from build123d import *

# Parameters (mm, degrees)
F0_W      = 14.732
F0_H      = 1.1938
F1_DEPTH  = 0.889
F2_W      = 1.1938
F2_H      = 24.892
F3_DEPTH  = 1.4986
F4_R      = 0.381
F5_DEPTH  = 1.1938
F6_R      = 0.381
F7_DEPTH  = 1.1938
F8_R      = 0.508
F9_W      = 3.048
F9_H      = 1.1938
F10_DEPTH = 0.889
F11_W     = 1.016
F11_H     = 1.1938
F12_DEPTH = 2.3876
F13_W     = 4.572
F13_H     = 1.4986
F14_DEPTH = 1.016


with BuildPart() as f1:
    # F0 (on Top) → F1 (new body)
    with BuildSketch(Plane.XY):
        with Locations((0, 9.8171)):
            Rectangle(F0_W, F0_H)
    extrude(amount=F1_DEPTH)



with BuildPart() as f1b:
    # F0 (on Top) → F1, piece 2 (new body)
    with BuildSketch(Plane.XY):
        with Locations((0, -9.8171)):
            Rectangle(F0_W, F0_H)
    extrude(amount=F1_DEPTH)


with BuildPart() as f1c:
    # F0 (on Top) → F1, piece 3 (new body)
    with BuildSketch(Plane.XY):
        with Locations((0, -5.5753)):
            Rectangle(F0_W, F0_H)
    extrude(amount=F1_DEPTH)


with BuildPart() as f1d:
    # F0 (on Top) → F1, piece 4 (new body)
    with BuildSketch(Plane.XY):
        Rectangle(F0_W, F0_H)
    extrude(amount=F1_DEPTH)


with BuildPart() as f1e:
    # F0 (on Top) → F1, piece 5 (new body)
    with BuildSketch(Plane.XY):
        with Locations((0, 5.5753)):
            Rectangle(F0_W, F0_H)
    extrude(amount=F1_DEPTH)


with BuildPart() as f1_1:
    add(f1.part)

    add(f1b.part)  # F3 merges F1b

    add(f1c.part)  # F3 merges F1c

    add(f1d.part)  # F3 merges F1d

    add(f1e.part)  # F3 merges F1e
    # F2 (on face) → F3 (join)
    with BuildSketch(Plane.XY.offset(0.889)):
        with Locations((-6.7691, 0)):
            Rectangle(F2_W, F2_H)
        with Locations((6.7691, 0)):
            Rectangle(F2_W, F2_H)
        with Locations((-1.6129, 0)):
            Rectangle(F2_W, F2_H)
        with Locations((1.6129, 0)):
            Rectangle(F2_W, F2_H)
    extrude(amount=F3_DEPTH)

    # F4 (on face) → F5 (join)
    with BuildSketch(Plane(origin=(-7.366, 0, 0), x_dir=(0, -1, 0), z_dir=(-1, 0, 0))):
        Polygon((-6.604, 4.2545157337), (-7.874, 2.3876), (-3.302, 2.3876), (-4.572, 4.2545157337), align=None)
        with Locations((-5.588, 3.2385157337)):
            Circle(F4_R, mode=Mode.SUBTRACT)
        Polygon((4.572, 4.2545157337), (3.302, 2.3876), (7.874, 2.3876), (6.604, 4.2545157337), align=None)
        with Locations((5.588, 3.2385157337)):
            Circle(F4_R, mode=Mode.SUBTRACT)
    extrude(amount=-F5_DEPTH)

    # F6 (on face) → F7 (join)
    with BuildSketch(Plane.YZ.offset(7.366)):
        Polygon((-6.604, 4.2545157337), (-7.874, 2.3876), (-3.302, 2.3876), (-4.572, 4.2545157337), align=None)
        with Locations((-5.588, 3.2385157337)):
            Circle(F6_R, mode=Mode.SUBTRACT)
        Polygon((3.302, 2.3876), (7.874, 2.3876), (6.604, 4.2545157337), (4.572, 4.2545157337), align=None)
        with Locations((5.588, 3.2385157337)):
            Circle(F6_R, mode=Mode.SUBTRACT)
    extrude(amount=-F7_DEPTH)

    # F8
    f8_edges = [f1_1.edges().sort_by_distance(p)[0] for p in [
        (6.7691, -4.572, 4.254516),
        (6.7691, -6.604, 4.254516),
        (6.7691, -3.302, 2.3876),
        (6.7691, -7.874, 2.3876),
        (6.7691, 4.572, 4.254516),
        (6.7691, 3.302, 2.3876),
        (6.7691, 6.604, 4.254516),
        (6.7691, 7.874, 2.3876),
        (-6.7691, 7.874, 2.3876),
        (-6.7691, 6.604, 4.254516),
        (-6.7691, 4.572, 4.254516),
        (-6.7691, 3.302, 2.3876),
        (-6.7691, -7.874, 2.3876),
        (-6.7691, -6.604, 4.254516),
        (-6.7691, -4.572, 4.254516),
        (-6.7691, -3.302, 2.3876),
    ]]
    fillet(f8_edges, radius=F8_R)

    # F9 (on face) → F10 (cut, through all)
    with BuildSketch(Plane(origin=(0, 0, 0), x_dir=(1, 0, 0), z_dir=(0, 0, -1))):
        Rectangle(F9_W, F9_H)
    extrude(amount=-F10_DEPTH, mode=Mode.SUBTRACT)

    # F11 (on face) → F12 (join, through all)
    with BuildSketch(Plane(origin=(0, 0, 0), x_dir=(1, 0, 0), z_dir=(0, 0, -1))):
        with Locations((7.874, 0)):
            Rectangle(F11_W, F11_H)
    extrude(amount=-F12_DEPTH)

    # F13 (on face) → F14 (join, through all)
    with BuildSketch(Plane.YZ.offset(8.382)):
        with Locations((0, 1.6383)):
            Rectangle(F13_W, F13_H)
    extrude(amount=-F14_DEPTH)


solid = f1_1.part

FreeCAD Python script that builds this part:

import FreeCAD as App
import Part
import Sketcher
from FreeCAD import Vector
Q = App.Units.Quantity


def edges_at(feature, points):
    """Names of the edges that pass closest to the given points."""
    edges = feature.Shape.Edges
    near = lambda p: min(range(len(edges)), key=lambda i: edges[i].distToShape(Part.Vertex(*p))[0])
    return sorted({f"Edge{near(p) + 1}" for p in points})

doc = App.newDocument("Part")
params = doc.addObject("Spreadsheet::Sheet", "Params")
for row, (alias, value) in enumerate([
    ("sketch1_width", "0.58 in"),
    ("sketch1_height", "0.047 in"),
    ("pad1_length", "0.035 in"),
    ("sketch2_width", "0.58 in"),
    ("sketch2_height", "0.047 in"),
    ("pad2_length", "0.035 in"),
    ("sketch3_width", "0.58 in"),
    ("sketch3_height", "0.047 in"),
    ("pad3_length", "0.035 in"),
    ("sketch4_width", "0.58 in"),
    ("sketch4_height", "0.047 in"),
    ("pad4_length", "0.035 in"),
    ("sketch5_width", "0.58 in"),
    ("sketch5_height", "0.047 in"),
    ("pad5_length", "0.035 in"),
    ("sketch6_height", "0.98 in"),
    ("sketch6_width", "0.047 in"),
    ("pad6_length", "0.059 in"),
    ("sketch7_diameter", "0.03 in"),
    ("sketch7_width", "0.18 in"),
    ("sketch7_width2", "0.08 in"),
    ("pad7_length", "0.047 in"),
    ("sketch8_diameter", "0.03 in"),
    ("sketch8_width", "0.18 in"),
    ("sketch8_width2", "0.08 in"),
    ("pad8_length", "0.047 in"),
    ("fillet_radius", "0.02 in"),
    ("sketch9_width", "0.12 in"),
    ("sketch9_height", "0.047 in"),
    ("pocket1_length", "0.035 in"),
    ("sketch10_width", "0.04 in"),
    ("sketch10_height", "0.047 in"),
    ("pad9_length", "0.094 in"),
    ("sketch11_width", "0.18 in"),
    ("sketch11_height", "0.059 in"),
    ("pad10_length", "0.04 in"),
], start=1):
    params.set(f"A{row}", alias)
    params.set(f"B{row}", "=" + value)
    params.setAlias(f"B{row}", alias)

body = doc.addObject("PartDesign::Body", "Body")

sketch1 = doc.addObject("Sketcher::SketchObject", "Sketch")
body.addObject(sketch1)
sketch1.AttachmentSupport = (doc.XY_Plane, [""])
sketch1.MapMode = "FlatFace"
sketch1.addGeometry([
    Part.LineSegment(Vector(-7.366, 10.414, 0), Vector(-7.366, 9.2202, 0)),
    Part.LineSegment(Vector(-7.366, 9.2202, 0), Vector(7.366, 9.2202, 0)),
    Part.LineSegment(Vector(7.366, 9.2202, 0), Vector(7.366, 10.414, 0)),
    Part.LineSegment(Vector(7.366, 10.414, 0), Vector(-7.366, 10.414, 0)),
], False)
sketch1.addConstraint([
    Sketcher.Constraint("Coincident", 0, 2, 1, 1),
    Sketcher.Constraint("Coincident", 1, 2, 2, 1),
    Sketcher.Constraint("Coincident", 2, 2, 3, 1),
    Sketcher.Constraint("Coincident", 3, 2, 0, 1),
    Sketcher.Constraint("Vertical", 0),
    Sketcher.Constraint("Horizontal", 1),
    Sketcher.Constraint("Vertical", 2),
    Sketcher.Constraint("Horizontal", 3),
    Sketcher.Constraint("DistanceX", 1, 1, 1, 2, Q("0.58 in")),
    Sketcher.Constraint("DistanceY", 0, 2, 0, 1, Q("0.047 in")),
    Sketcher.Constraint("DistanceX", 0, 2, -1, 1, Q("0.29 in")),
    Sketcher.Constraint("DistanceY", -1, 1, 2, 2, Q("0.41 in")),
])
sketch1.setExpression("Constraints[8]", "Params.sketch1_width")
sketch1.setExpression("Constraints[9]", "Params.sketch1_height")
pad1 = doc.addObject("PartDesign::Pad", "Pad")
body.addObject(pad1)
pad1.Profile = sketch1
pad1.setExpression("Length", "Params.pad1_length")
body2 = doc.addObject("PartDesign::Body", "Body001")

sketch2 = doc.addObject("Sketcher::SketchObject", "Sketch001")
body2.addObject(sketch2)
sketch2.AttachmentSupport = (doc.getObject("XY_Plane001"), [""])
sketch2.MapMode = "FlatFace"
sketch2.addGeometry([
    Part.LineSegment(Vector(-7.366, -9.2202, 0), Vector(-7.366, -10.414, 0)),
    Part.LineSegment(Vector(-7.366, -10.414, 0), Vector(7.366, -10.414, 0)),
    Part.LineSegment(Vector(7.366, -10.414, 0), Vector(7.366, -9.2202, 0)),
    Part.LineSegment(Vector(7.366, -9.2202, 0), Vector(-7.366, -9.2202, 0)),
], False)
sketch2.addConstraint([
    Sketcher.Constraint("Coincident", 0, 2, 1, 1),
    Sketcher.Constraint("Coincident", 1, 2, 2, 1),
    Sketcher.Constraint("Coincident", 2, 2, 3, 1),
    Sketcher.Constraint("Coincident", 3, 2, 0, 1),
    Sketcher.Constraint("Vertical", 0),
    Sketcher.Constraint("Horizontal", 1),
    Sketcher.Constraint("Vertical", 2),
    Sketcher.Constraint("Horizontal", 3),
    Sketcher.Constraint("DistanceX", 1, 1, 1, 2, Q("0.58 in")),
    Sketcher.Constraint("DistanceY", 0, 2, 0, 1, Q("0.047 in")),
    Sketcher.Constraint("DistanceX", 0, 2, -1, 1, Q("0.29 in")),
    Sketcher.Constraint("DistanceY", 0, 2, -1, 1, Q("0.41 in")),
])
sketch2.setExpression("Constraints[8]", "Params.sketch2_width")
sketch2.setExpression("Constraints[9]", "Params.sketch2_height")
pad2 = doc.addObject("PartDesign::Pad", "Pad001")
body2.addObject(pad2)
pad2.Profile = sketch2
pad2.setExpression("Length", "Params.pad2_length")
body3 = doc.addObject("PartDesign::Body", "Body002")

sketch3 = doc.addObject("Sketcher::SketchObject", "Sketch002")
body3.addObject(sketch3)
sketch3.AttachmentSupport = (doc.getObject("XY_Plane002"), [""])
sketch3.MapMode = "FlatFace"
sketch3.addGeometry([
    Part.LineSegment(Vector(-7.366, -4.9784, 0), Vector(-7.366, -6.1722, 0)),
    Part.LineSegment(Vector(-7.366, -6.1722, 0), Vector(7.366, -6.1722, 0)),
    Part.LineSegment(Vector(7.366, -6.1722, 0), Vector(7.366, -4.9784, 0)),
    Part.LineSegment(Vector(7.366, -4.9784, 0), Vector(-7.366, -4.9784, 0)),
], False)
sketch3.addConstraint([
    Sketcher.Constraint("Coincident", 0, 2, 1, 1),
    Sketcher.Constraint("Coincident", 1, 2, 2, 1),
    Sketcher.Constraint("Coincident", 2, 2, 3, 1),
    Sketcher.Constraint("Coincident", 3, 2, 0, 1),
    Sketcher.Constraint("Vertical", 0),
    Sketcher.Constraint("Horizontal", 1),
    Sketcher.Constraint("Vertical", 2),
    Sketcher.Constraint("Horizontal", 3),
    Sketcher.Constraint("DistanceX", 1, 1, 1, 2, Q("0.58 in")),
    Sketcher.Constraint("DistanceY", 0, 2, 0, 1, Q("0.047 in")),
    Sketcher.Constraint("DistanceX", 0, 2, -1, 1, Q("0.29 in")),
    Sketcher.Constraint("DistanceY", 0, 2, -1, 1, Q("0.243 in")),
])
sketch3.setExpression("Constraints[8]", "Params.sketch3_width")
sketch3.setExpression("Constraints[9]", "Params.sketch3_height")
pad3 = doc.addObject("PartDesign::Pad", "Pad002")
body3.addObject(pad3)
pad3.Profile = sketch3
pad3.setExpression("Length", "Params.pad3_length")
body4 = doc.addObject("PartDesign::Body", "Body003")

sketch4 = doc.addObject("Sketcher::SketchObject", "Sketch003")
body4.addObject(sketch4)
sketch4.AttachmentSupport = (doc.getObject("XY_Plane003"), [""])
sketch4.MapMode = "FlatFace"
sketch4.addGeometry([
    Part.LineSegment(Vector(-7.366, 0.5969, 0), Vector(-7.366, -0.5969, 0)),
    Part.LineSegment(Vector(-7.366, -0.5969, 0), Vector(7.366, -0.5969, 0)),
    Part.LineSegment(Vector(7.366, -0.5969, 0), Vector(7.366, 0.5969, 0)),
    Part.LineSegment(Vector(7.366, 0.5969, 0), Vector(-7.366, 0.5969, 0)),
], False)
sketch4.addConstraint([
    Sketcher.Constraint("Coincident", 0, 2, 1, 1),
    Sketcher.Constraint("Coincident", 1, 2, 2, 1),
    Sketcher.Constraint("Coincident", 2, 2, 3, 1),
    Sketcher.Constraint("Coincident", 3, 2, 0, 1),
    Sketcher.Constraint("Vertical", 0),
    Sketcher.Constraint("Horizontal", 1),
    Sketcher.Constraint("Vertical", 2),
    Sketcher.Constraint("Horizontal", 3),
    Sketcher.Constraint("Symmetric", 0, 2, 2, 2, -1, 1),
    Sketcher.Constraint("DistanceX", 1, 1, 1, 2, Q("0.58 in")),
    Sketcher.Constraint("DistanceY", 0, 2, 0, 1, Q("0.047 in")),
])
sketch4.setExpression("Constraints[9]", "Params.sketch4_width")
sketch4.setExpression("Constraints[10]", "Params.sketch4_height")
pad4 = doc.addObject("PartDesign::Pad", "Pad003")
body4.addObject(pad4)
pad4.Profile = sketch4
pad4.setExpression("Length", "Params.pad4_length")
body5 = doc.addObject("PartDesign::Body", "Body004")

sketch5 = doc.addObject("Sketcher::SketchObject", "Sketch004")
body5.addObject(sketch5)
sketch5.AttachmentSupport = (doc.getObject("XY_Plane004"), [""])
sketch5.MapMode = "FlatFace"
sketch5.addGeometry([
    Part.LineSegment(Vector(-7.366, 6.1722, 0), Vector(-7.366, 4.9784, 0)),
    Part.LineSegment(Vector(-7.366, 4.9784, 0), Vector(7.366, 4.9784, 0)),
    Part.LineSegment(Vector(7.366, 4.9784, 0), Vector(7.366, 6.1722, 0)),
    Part.LineSegment(Vector(7.366, 6.1722, 0), Vector(-7.366, 6.1722, 0)),
], False)
sketch5.addConstraint([
    Sketcher.Constraint("Coincident", 0, 2, 1, 1),
    Sketcher.Constraint("Coincident", 1, 2, 2, 1),
    Sketcher.Constraint("Coincident", 2, 2, 3, 1),
    Sketcher.Constraint("Coincident", 3, 2, 0, 1),
    Sketcher.Constraint("Vertical", 0),
    Sketcher.Constraint("Horizontal", 1),
    Sketcher.Constraint("Vertical", 2),
    Sketcher.Constraint("Horizontal", 3),
    Sketcher.Constraint("DistanceX", 1, 1, 1, 2, Q("0.58 in")),
    Sketcher.Constraint("DistanceY", 0, 2, 0, 1, Q("0.047 in")),
    Sketcher.Constraint("DistanceX", 0, 2, -1, 1, Q("0.29 in")),
    Sketcher.Constraint("DistanceY", -1, 1, 0, 2, Q("0.196 in")),
])
sketch5.setExpression("Constraints[8]", "Params.sketch5_width")
sketch5.setExpression("Constraints[9]", "Params.sketch5_height")
pad5 = doc.addObject("PartDesign::Pad", "Pad004")
body5.addObject(pad5)
pad5.Profile = sketch5
pad5.setExpression("Length", "Params.pad5_length")
body.AllowCompound = True
doc.recompute()

boolean = doc.addObject("PartDesign::Boolean", "Boolean")
body.addObject(boolean)
boolean.Type = "Fuse"
boolean.addObjects([body2])
doc.recompute()

boolean2 = doc.addObject("PartDesign::Boolean", "Boolean001")
body.addObject(boolean2)
boolean2.Type = "Fuse"
boolean2.addObjects([body3])
doc.recompute()

boolean3 = doc.addObject("PartDesign::Boolean", "Boolean002")
body.addObject(boolean3)
boolean3.Type = "Fuse"
boolean3.addObjects([body4])
doc.recompute()

boolean4 = doc.addObject("PartDesign::Boolean", "Boolean003")
body.addObject(boolean4)
boolean4.Type = "Fuse"
boolean4.addObjects([body5])

sketch6 = doc.addObject("Sketcher::SketchObject", "Sketch005")
body.addObject(sketch6)
sketch6.AttachmentSupport = (doc.XY_Plane, [""])
sketch6.MapMode = "FlatFace"
sketch6.AttachmentOffset = App.Placement(Vector(0, 0, 0.035 * 25.4), App.Rotation())
sketch6.addGeometry([
    Part.LineSegment(Vector(-7.366, 12.446, 0), Vector(-7.366, -12.446, 0)),
    Part.LineSegment(Vector(-7.366, -12.446, 0), Vector(-6.1722, -12.446, 0)),
    Part.LineSegment(Vector(-6.1722, -12.446, 0), Vector(-6.1722, 12.446, 0)),
    Part.LineSegment(Vector(-6.1722, 12.446, 0), Vector(-7.366, 12.446, 0)),
    Part.LineSegment(Vector(6.1722, 12.446, 0), Vector(6.1722, -12.446, 0)),
    Part.LineSegment(Vector(6.1722, -12.446, 0), Vector(7.366, -12.446, 0)),
    Part.LineSegment(Vector(7.366, -12.446, 0), Vector(7.366, 12.446, 0)),
    Part.LineSegment(Vector(7.366, 12.446, 0), Vector(6.1722, 12.446, 0)),
    Part.LineSegment(Vector(-2.2098, 12.446, 0), Vector(-2.2098, -12.446, 0)),
    Part.LineSegment(Vector(-2.2098, -12.446, 0), Vector(-1.016, -12.446, 0)),
    Part.LineSegment(Vector(-1.016, -12.446, 0), Vector(-1.016, 12.446, 0)),
    Part.LineSegment(Vector(-1.016, 12.446, 0), Vector(-2.2098, 12.446, 0)),
    Part.LineSegment(Vector(1.016, 12.446, 0), Vector(1.016, -12.446, 0)),
    Part.LineSegment(Vector(1.016, -12.446, 0), Vector(2.2098, -12.446, 0)),
    Part.LineSegment(Vector(2.2098, -12.446, 0), Vector(2.2098, 12.446, 0)),
    Part.LineSegment(Vector(2.2098, 12.446, 0), Vector(1.016, 12.446, 0)),
], False)
sketch6.addConstraint([
    Sketcher.Constraint("Coincident", 0, 2, 1, 1),
    Sketcher.Constraint("Coincident", 1, 2, 2, 1),
    Sketcher.Constraint("Coincident", 2, 2, 3, 1),
    Sketcher.Constraint("Coincident", 3, 2, 0, 1),
    Sketcher.Constraint("Coincident", 4, 2, 5, 1),
    Sketcher.Constraint("Coincident", 5, 2, 6, 1),
    Sketcher.Constraint("Coincident", 6, 2, 7, 1),
    Sketcher.Constraint("Coincident", 7, 2, 4, 1),
    Sketcher.Constraint("Coincident", 8, 2, 9, 1),
    Sketcher.Constraint("Coincident", 9, 2, 10, 1),
    Sketcher.Constraint("Coincident", 10, 2, 11, 1),
    Sketcher.Constraint("Coincident", 11, 2, 8, 1),
    Sketcher.Constraint("Coincident", 12, 2, 13, 1),
    Sketcher.Constraint("Coincident", 13, 2, 14, 1),
    Sketcher.Constraint("Coincident", 14, 2, 15, 1),
    Sketcher.Constraint("Coincident", 15, 2, 12, 1),
    Sketcher.Constraint("Vertical", 0),
    Sketcher.Constraint("Horizontal", 1),
    Sketcher.Constraint("Vertical", 2),
    Sketcher.Constraint("Horizontal", 3),
    Sketcher.Constraint("Vertical", 4),
    Sketcher.Constraint("Horizontal", 5),
    Sketcher.Constraint("Vertical", 6),
    Sketcher.Constraint("Horizontal", 7),
    Sketcher.Constraint("Vertical", 8),
    Sketcher.Constraint("Horizontal", 9),
    Sketcher.Constraint("Vertical", 10),
    Sketcher.Constraint("Horizontal", 11),
    Sketcher.Constraint("Vertical", 12),
    Sketcher.Constraint("Horizontal", 13),
    Sketcher.Constraint("Vertical", 14),
    Sketcher.Constraint("Horizontal", 15),
    Sketcher.Constraint("Symmetric", 2, 2, 4, 2, -1, 1),
    Sketcher.Constraint("Symmetric", 0, 2, 6, 2, -1, 1),
    Sketcher.Constraint("Symmetric", 10, 2, 12, 2, -1, 1),
    Sketcher.Constraint("Symmetric", 8, 2, 14, 2, -1, 1),
    Sketcher.Constraint("Horizontal", 1, 2, 4, 2),
    Sketcher.Constraint("Horizontal", 5, 2, 8, 2),
    Sketcher.Constraint("Horizontal", 7, 2, 10, 2),
    Sketcher.Constraint("Equal", 7, 9),
    Sketcher.Constraint("DistanceY", 0, 2, 0, 1, Q("0.98 in")),
    Sketcher.Constraint("DistanceX", 1, 1, 1, 2, Q("0.047 in")),
    Sketcher.Constraint("DistanceX", 0, 2, -1, 1, Q("0.29 in")),
    Sketcher.Constraint("DistanceX", 9, 2, -1, 1, Q("0.04 in")),
])
sketch6.setExpression("Constraints[40]", "Params.sketch6_height")
sketch6.setExpression("Constraints[41]", "Params.sketch6_width")
pad6 = doc.addObject("PartDesign::Pad", "Pad005")
body.addObject(pad6)
pad6.Profile = sketch6
pad6.setExpression("Length", "Params.pad6_length")

sketch7 = doc.addObject("Sketcher::SketchObject", "Sketch006")
body.addObject(sketch7)
sketch7.AttachmentSupport = (doc.YZ_Plane, [""])
sketch7.MapMode = "FlatFace"
sketch7.AttachmentOffset = App.Placement(Vector(0, 0, -0.29 * 25.4), App.Rotation())
sketch7.addGeometry([
    Part.LineSegment(Vector(6.604, 4.254516, 0), Vector(7.874, 2.3876, 0)),
    Part.LineSegment(Vector(7.874, 2.3876, 0), Vector(3.302, 2.3876, 0)),
    Part.LineSegment(Vector(3.302, 2.3876, 0), Vector(4.572, 4.254516, 0)),
    Part.LineSegment(Vector(4.572, 4.254516, 0), Vector(6.604, 4.254516, 0)),
    Part.Circle(Vector(5.588, 3.238516, 0), Vector(0, 0, 1), 0.381),
    Part.LineSegment(Vector(-4.572, 4.254516, 0), Vector(-3.302, 2.3876, 0)),
    Part.LineSegment(Vector(-3.302, 2.3876, 0), Vector(-7.874, 2.3876, 0)),
    Part.LineSegment(Vector(-7.874, 2.3876, 0), Vector(-6.604, 4.254516, 0)),
    Part.LineSegment(Vector(-6.604, 4.254516, 0), Vector(-4.572, 4.254516, 0)),
    Part.Circle(Vector(-5.588, 3.238516, 0), Vector(0, 0, 1), 0.381),
], False)
sketch7.addConstraint([
    Sketcher.Constraint("Coincident", 0, 2, 1, 1),
    Sketcher.Constraint("Coincident", 1, 2, 2, 1),
    Sketcher.Constraint("Coincident", 2, 2, 3, 1),
    Sketcher.Constraint("Coincident", 3, 2, 0, 1),
    Sketcher.Constraint("Coincident", 5, 2, 6, 1),
    Sketcher.Constraint("Coincident", 6, 2, 7, 1),
    Sketcher.Constraint("Coincident", 7, 2, 8, 1),
    Sketcher.Constraint("Coincident", 8, 2, 5, 1),
    Sketcher.Constraint("Horizontal", 1),
    Sketcher.Constraint("Horizontal", 3),
    Sketcher.Constraint("Horizontal", 6),
    Sketcher.Constraint("Horizontal", 8),
    Sketcher.Constraint("Equal", 4, 9),
    Sketcher.Constraint("Symmetric", 4, 3, 9, 3, -2),
    Sketcher.Constraint("Symmetric", 1, 2, 5, 2, -2),
    Sketcher.Constraint("Symmetric", 3, 2, 7, 2, -2),
    Sketcher.Constraint("Parallel", 0, 5),
    Sketcher.Constraint("Parallel", 2, 7),
    Sketcher.Constraint("Equal", 1, 6),
    Sketcher.Constraint("Diameter", 4, Q("0.03 in")),
    Sketcher.Constraint("DistanceX", 1, 2, 1, 1, Q("0.18 in")),
    Sketcher.Constraint("DistanceX", 3, 1, 3, 2, Q("0.08 in")),
    Sketcher.Constraint("DistanceX", 9, 3, 2, 2, Q("0.4 in")),
    Sketcher.Constraint("DistanceX", -1, 1, 4, 3, Q("0.22 in")),
    Sketcher.Constraint("DistanceY", 4, 3, 2, 2, Q("0.04 in")),
    Sketcher.Constraint("DistanceY", -1, 1, 0, 2, Q("0.094 in")),
    Sketcher.Constraint("Distance", 0, 2.257936),
])
sketch7.setExpression("Constraints[19]", "Params.sketch7_diameter")
sketch7.setExpression("Constraints[20]", "Params.sketch7_width")
sketch7.setExpression("Constraints[21]", "Params.sketch7_width2")
pad7 = doc.addObject("PartDesign::Pad", "Pad006")
body.addObject(pad7)
pad7.Profile = sketch7
pad7.setExpression("Length", "Params.pad7_length")

sketch8 = doc.addObject("Sketcher::SketchObject", "Sketch007")
body.addObject(sketch8)
sketch8.AttachmentSupport = (doc.YZ_Plane, [""])
sketch8.MapMode = "FlatFace"
sketch8.AttachmentOffset = App.Placement(Vector(0, 0, 0.29 * 25.4), App.Rotation())
sketch8.addGeometry([
    Part.LineSegment(Vector(-6.604, 4.254516, 0), Vector(-7.874, 2.3876, 0)),
    Part.LineSegment(Vector(-7.874, 2.3876, 0), Vector(-3.302, 2.3876, 0)),
    Part.LineSegment(Vector(-3.302, 2.3876, 0), Vector(-4.572, 4.254516, 0)),
    Part.LineSegment(Vector(-4.572, 4.254516, 0), Vector(-6.604, 4.254516, 0)),
    Part.Circle(Vector(-5.588, 3.238516, 0), Vector(0, 0, 1), 0.381),
    Part.LineSegment(Vector(3.302, 2.3876, 0), Vector(7.874, 2.3876, 0)),
    Part.LineSegment(Vector(7.874, 2.3876, 0), Vector(6.604, 4.254516, 0)),
    Part.LineSegment(Vector(6.604, 4.254516, 0), Vector(4.572, 4.254516, 0)),
    Part.LineSegment(Vector(4.572, 4.254516, 0), Vector(3.302, 2.3876, 0)),
    Part.Circle(Vector(5.588, 3.238516, 0), Vector(0, 0, 1), 0.381),
], False)
sketch8.addConstraint([
    Sketcher.Constraint("Coincident", 0, 2, 1, 1),
    Sketcher.Constraint("Coincident", 1, 2, 2, 1),
    Sketcher.Constraint("Coincident", 2, 2, 3, 1),
    Sketcher.Constraint("Coincident", 3, 2, 0, 1),
    Sketcher.Constraint("Coincident", 5, 2, 6, 1),
    Sketcher.Constraint("Coincident", 6, 2, 7, 1),
    Sketcher.Constraint("Coincident", 7, 2, 8, 1),
    Sketcher.Constraint("Coincident", 8, 2, 5, 1),
    Sketcher.Constraint("Horizontal", 1),
    Sketcher.Constraint("Horizontal", 3),
    Sketcher.Constraint("Horizontal", 5),
    Sketcher.Constraint("Horizontal", 7),
    Sketcher.Constraint("Equal", 4, 9),
    Sketcher.Constraint("Symmetric", 4, 3, 9, 3, -2),
    Sketcher.Constraint("Symmetric", 0, 2, 5, 2, -2),
    Sketcher.Constraint("Symmetric", 3, 2, 6, 2, -2),
    Sketcher.Constraint("Parallel", 2, 6),
    Sketcher.Constraint("Parallel", 0, 8),
    Sketcher.Constraint("Equal", 1, 5),
    Sketcher.Constraint("Diameter", 4, Q("0.03 in")),
    Sketcher.Constraint("DistanceX", 1, 1, 1, 2, Q("0.18 in")),
    Sketcher.Constraint("DistanceX", 3, 2, 3, 1, Q("0.08 in")),
    Sketcher.Constraint("DistanceX", 2, 2, 9, 3, Q("0.4 in")),
    Sketcher.Constraint("DistanceX", 4, 3, -1, 1, Q("0.22 in")),
    Sketcher.Constraint("DistanceY", 4, 3, 2, 2, Q("0.04 in")),
    Sketcher.Constraint("DistanceY", -1, 1, 0, 2, Q("0.094 in")),
    Sketcher.Constraint("Distance", 0, 2.257936),
])
sketch8.setExpression("Constraints[19]", "Params.sketch8_diameter")
sketch8.setExpression("Constraints[20]", "Params.sketch8_width")
sketch8.setExpression("Constraints[21]", "Params.sketch8_width2")
pad8 = doc.addObject("PartDesign::Pad", "Pad007")
body.addObject(pad8)
pad8.Profile = sketch8
pad8.setExpression("Length", "Params.pad8_length")
pad8.Reversed = True
doc.recompute()

fillet = doc.addObject("PartDesign::Fillet", "Fillet")
body.addObject(fillet)
fillet.Base = (pad8, edges_at(pad8, [
    (6.769, -4.572, 4.255),
    (6.769, -6.604, 4.255),
    (6.769, -3.302, 2.388),
    (6.769, -7.874, 2.388),
    (6.769, 4.572, 4.255),
    (6.769, 3.302, 2.388),
    (6.769, 6.604, 4.255),
    (6.769, 7.874, 2.388),
    (-6.769, 7.874, 2.388),
    (-6.769, 6.604, 4.255),
    (-6.769, 4.572, 4.255),
    (-6.769, 3.302, 2.388),
    (-6.769, -7.874, 2.388),
    (-6.769, -6.604, 4.255),
    (-6.769, -4.572, 4.255),
    (-6.769, -3.302, 2.388),
]))
fillet.setExpression("Radius", "Params.fillet_radius")

sketch9 = doc.addObject("Sketcher::SketchObject", "Sketch008")
body.addObject(sketch9)
sketch9.AttachmentSupport = (doc.XY_Plane, [""])
sketch9.MapMode = "FlatFace"
sketch9.addGeometry([
    Part.LineSegment(Vector(-1.524, -0.5969, 0), Vector(-1.524, 0.5969, 0)),
    Part.LineSegment(Vector(-1.524, 0.5969, 0), Vector(1.524, 0.5969, 0)),
    Part.LineSegment(Vector(1.524, 0.5969, 0), Vector(1.524, -0.5969, 0)),
    Part.LineSegment(Vector(1.524, -0.5969, 0), Vector(-1.524, -0.5969, 0)),
], False)
sketch9.addConstraint([
    Sketcher.Constraint("Coincident", 0, 2, 1, 1),
    Sketcher.Constraint("Coincident", 1, 2, 2, 1),
    Sketcher.Constraint("Coincident", 2, 2, 3, 1),
    Sketcher.Constraint("Coincident", 3, 2, 0, 1),
    Sketcher.Constraint("Vertical", 0),
    Sketcher.Constraint("Horizontal", 1),
    Sketcher.Constraint("Vertical", 2),
    Sketcher.Constraint("Horizontal", 3),
    Sketcher.Constraint("Symmetric", 0, 2, 2, 2, -1, 1),
    Sketcher.Constraint("DistanceX", 1, 1, 1, 2, Q("0.12 in")),
    Sketcher.Constraint("DistanceY", 0, 1, 0, 2, Q("0.047 in")),
])
sketch9.setExpression("Constraints[9]", "Params.sketch9_width")
sketch9.setExpression("Constraints[10]", "Params.sketch9_height")
pocket1 = doc.addObject("PartDesign::Pocket", "Pocket")
body.addObject(pocket1)
pocket1.Profile = sketch9
pocket1.setExpression("Length", "Params.pocket1_length")
pocket1.Reversed = True

sketch10 = doc.addObject("Sketcher::SketchObject", "Sketch009")
body.addObject(sketch10)
sketch10.AttachmentSupport = (doc.XY_Plane, [""])
sketch10.MapMode = "FlatFace"
sketch10.addGeometry([
    Part.LineSegment(Vector(7.366, -0.5969, 0), Vector(7.366, 0.5969, 0)),
    Part.LineSegment(Vector(7.366, 0.5969, 0), Vector(8.382, 0.5969, 0)),
    Part.LineSegment(Vector(8.382, 0.5969, 0), Vector(8.382, -0.5969, 0)),
    Part.LineSegment(Vector(8.382, -0.5969, 0), Vector(7.366, -0.5969, 0)),
], False)
sketch10.addConstraint([
    Sketcher.Constraint("Coincident", 0, 2, 1, 1),
    Sketcher.Constraint("Coincident", 1, 2, 2, 1),
    Sketcher.Constraint("Coincident", 2, 2, 3, 1),
    Sketcher.Constraint("Coincident", 3, 2, 0, 1),
    Sketcher.Constraint("Vertical", 0),
    Sketcher.Constraint("Horizontal", 1),
    Sketcher.Constraint("Vertical", 2),
    Sketcher.Constraint("Horizontal", 3),
    Sketcher.Constraint("DistanceX", 1, 1, 1, 2, Q("0.04 in")),
    Sketcher.Constraint("DistanceY", 0, 1, 0, 2, Q("0.047 in")),
    Sketcher.Constraint("DistanceX", -1, 1, 0, 2, Q("0.29 in")),
    Sketcher.Constraint("DistanceY", -1, 1, 0, 2, Q("0.0235 in")),
])
sketch10.setExpression("Constraints[8]", "Params.sketch10_width")
sketch10.setExpression("Constraints[9]", "Params.sketch10_height")
pad9 = doc.addObject("PartDesign::Pad", "Pad008")
body.addObject(pad9)
pad9.Profile = sketch10
pad9.setExpression("Length", "Params.pad9_length")

sketch11 = doc.addObject("Sketcher::SketchObject", "Sketch010")
body.addObject(sketch11)
sketch11.AttachmentSupport = (doc.YZ_Plane, [""])
sketch11.MapMode = "FlatFace"
sketch11.AttachmentOffset = App.Placement(Vector(0, 0, 0.33 * 25.4), App.Rotation())
sketch11.addGeometry([
    Part.LineSegment(Vector(-2.286, 2.3876, 0), Vector(-2.286, 0.889, 0)),
    Part.LineSegment(Vector(-2.286, 0.889, 0), Vector(2.286, 0.889, 0)),
    Part.LineSegment(Vector(2.286, 0.889, 0), Vector(2.286, 2.3876, 0)),
    Part.LineSegment(Vector(2.286, 2.3876, 0), Vector(-2.286, 2.3876, 0)),
], False)
sketch11.addConstraint([
    Sketcher.Constraint("Coincident", 0, 2, 1, 1),
    Sketcher.Constraint("Coincident", 1, 2, 2, 1),
    Sketcher.Constraint("Coincident", 2, 2, 3, 1),
    Sketcher.Constraint("Coincident", 3, 2, 0, 1),
    Sketcher.Constraint("Vertical", 0),
    Sketcher.Constraint("Horizontal", 1),
    Sketcher.Constraint("Vertical", 2),
    Sketcher.Constraint("Horizontal", 3),
    Sketcher.Constraint("DistanceX", 1, 1, 1, 2, Q("0.18 in")),
    Sketcher.Constraint("DistanceY", 0, 2, 0, 1, Q("0.059 in")),
    Sketcher.Constraint("DistanceX", 0, 2, -1, 1, Q("0.09 in")),
    Sketcher.Constraint("DistanceY", -1, 1, 0, 2, Q("0.035 in")),
])
sketch11.setExpression("Constraints[8]", "Params.sketch11_width")
sketch11.setExpression("Constraints[9]", "Params.sketch11_height")
pad10 = doc.addObject("PartDesign::Pad", "Pad009")
body.addObject(pad10)
pad10.Profile = sketch11
pad10.setExpression("Length", "Params.pad10_length")
pad10.Reversed = True

doc.recompute()
